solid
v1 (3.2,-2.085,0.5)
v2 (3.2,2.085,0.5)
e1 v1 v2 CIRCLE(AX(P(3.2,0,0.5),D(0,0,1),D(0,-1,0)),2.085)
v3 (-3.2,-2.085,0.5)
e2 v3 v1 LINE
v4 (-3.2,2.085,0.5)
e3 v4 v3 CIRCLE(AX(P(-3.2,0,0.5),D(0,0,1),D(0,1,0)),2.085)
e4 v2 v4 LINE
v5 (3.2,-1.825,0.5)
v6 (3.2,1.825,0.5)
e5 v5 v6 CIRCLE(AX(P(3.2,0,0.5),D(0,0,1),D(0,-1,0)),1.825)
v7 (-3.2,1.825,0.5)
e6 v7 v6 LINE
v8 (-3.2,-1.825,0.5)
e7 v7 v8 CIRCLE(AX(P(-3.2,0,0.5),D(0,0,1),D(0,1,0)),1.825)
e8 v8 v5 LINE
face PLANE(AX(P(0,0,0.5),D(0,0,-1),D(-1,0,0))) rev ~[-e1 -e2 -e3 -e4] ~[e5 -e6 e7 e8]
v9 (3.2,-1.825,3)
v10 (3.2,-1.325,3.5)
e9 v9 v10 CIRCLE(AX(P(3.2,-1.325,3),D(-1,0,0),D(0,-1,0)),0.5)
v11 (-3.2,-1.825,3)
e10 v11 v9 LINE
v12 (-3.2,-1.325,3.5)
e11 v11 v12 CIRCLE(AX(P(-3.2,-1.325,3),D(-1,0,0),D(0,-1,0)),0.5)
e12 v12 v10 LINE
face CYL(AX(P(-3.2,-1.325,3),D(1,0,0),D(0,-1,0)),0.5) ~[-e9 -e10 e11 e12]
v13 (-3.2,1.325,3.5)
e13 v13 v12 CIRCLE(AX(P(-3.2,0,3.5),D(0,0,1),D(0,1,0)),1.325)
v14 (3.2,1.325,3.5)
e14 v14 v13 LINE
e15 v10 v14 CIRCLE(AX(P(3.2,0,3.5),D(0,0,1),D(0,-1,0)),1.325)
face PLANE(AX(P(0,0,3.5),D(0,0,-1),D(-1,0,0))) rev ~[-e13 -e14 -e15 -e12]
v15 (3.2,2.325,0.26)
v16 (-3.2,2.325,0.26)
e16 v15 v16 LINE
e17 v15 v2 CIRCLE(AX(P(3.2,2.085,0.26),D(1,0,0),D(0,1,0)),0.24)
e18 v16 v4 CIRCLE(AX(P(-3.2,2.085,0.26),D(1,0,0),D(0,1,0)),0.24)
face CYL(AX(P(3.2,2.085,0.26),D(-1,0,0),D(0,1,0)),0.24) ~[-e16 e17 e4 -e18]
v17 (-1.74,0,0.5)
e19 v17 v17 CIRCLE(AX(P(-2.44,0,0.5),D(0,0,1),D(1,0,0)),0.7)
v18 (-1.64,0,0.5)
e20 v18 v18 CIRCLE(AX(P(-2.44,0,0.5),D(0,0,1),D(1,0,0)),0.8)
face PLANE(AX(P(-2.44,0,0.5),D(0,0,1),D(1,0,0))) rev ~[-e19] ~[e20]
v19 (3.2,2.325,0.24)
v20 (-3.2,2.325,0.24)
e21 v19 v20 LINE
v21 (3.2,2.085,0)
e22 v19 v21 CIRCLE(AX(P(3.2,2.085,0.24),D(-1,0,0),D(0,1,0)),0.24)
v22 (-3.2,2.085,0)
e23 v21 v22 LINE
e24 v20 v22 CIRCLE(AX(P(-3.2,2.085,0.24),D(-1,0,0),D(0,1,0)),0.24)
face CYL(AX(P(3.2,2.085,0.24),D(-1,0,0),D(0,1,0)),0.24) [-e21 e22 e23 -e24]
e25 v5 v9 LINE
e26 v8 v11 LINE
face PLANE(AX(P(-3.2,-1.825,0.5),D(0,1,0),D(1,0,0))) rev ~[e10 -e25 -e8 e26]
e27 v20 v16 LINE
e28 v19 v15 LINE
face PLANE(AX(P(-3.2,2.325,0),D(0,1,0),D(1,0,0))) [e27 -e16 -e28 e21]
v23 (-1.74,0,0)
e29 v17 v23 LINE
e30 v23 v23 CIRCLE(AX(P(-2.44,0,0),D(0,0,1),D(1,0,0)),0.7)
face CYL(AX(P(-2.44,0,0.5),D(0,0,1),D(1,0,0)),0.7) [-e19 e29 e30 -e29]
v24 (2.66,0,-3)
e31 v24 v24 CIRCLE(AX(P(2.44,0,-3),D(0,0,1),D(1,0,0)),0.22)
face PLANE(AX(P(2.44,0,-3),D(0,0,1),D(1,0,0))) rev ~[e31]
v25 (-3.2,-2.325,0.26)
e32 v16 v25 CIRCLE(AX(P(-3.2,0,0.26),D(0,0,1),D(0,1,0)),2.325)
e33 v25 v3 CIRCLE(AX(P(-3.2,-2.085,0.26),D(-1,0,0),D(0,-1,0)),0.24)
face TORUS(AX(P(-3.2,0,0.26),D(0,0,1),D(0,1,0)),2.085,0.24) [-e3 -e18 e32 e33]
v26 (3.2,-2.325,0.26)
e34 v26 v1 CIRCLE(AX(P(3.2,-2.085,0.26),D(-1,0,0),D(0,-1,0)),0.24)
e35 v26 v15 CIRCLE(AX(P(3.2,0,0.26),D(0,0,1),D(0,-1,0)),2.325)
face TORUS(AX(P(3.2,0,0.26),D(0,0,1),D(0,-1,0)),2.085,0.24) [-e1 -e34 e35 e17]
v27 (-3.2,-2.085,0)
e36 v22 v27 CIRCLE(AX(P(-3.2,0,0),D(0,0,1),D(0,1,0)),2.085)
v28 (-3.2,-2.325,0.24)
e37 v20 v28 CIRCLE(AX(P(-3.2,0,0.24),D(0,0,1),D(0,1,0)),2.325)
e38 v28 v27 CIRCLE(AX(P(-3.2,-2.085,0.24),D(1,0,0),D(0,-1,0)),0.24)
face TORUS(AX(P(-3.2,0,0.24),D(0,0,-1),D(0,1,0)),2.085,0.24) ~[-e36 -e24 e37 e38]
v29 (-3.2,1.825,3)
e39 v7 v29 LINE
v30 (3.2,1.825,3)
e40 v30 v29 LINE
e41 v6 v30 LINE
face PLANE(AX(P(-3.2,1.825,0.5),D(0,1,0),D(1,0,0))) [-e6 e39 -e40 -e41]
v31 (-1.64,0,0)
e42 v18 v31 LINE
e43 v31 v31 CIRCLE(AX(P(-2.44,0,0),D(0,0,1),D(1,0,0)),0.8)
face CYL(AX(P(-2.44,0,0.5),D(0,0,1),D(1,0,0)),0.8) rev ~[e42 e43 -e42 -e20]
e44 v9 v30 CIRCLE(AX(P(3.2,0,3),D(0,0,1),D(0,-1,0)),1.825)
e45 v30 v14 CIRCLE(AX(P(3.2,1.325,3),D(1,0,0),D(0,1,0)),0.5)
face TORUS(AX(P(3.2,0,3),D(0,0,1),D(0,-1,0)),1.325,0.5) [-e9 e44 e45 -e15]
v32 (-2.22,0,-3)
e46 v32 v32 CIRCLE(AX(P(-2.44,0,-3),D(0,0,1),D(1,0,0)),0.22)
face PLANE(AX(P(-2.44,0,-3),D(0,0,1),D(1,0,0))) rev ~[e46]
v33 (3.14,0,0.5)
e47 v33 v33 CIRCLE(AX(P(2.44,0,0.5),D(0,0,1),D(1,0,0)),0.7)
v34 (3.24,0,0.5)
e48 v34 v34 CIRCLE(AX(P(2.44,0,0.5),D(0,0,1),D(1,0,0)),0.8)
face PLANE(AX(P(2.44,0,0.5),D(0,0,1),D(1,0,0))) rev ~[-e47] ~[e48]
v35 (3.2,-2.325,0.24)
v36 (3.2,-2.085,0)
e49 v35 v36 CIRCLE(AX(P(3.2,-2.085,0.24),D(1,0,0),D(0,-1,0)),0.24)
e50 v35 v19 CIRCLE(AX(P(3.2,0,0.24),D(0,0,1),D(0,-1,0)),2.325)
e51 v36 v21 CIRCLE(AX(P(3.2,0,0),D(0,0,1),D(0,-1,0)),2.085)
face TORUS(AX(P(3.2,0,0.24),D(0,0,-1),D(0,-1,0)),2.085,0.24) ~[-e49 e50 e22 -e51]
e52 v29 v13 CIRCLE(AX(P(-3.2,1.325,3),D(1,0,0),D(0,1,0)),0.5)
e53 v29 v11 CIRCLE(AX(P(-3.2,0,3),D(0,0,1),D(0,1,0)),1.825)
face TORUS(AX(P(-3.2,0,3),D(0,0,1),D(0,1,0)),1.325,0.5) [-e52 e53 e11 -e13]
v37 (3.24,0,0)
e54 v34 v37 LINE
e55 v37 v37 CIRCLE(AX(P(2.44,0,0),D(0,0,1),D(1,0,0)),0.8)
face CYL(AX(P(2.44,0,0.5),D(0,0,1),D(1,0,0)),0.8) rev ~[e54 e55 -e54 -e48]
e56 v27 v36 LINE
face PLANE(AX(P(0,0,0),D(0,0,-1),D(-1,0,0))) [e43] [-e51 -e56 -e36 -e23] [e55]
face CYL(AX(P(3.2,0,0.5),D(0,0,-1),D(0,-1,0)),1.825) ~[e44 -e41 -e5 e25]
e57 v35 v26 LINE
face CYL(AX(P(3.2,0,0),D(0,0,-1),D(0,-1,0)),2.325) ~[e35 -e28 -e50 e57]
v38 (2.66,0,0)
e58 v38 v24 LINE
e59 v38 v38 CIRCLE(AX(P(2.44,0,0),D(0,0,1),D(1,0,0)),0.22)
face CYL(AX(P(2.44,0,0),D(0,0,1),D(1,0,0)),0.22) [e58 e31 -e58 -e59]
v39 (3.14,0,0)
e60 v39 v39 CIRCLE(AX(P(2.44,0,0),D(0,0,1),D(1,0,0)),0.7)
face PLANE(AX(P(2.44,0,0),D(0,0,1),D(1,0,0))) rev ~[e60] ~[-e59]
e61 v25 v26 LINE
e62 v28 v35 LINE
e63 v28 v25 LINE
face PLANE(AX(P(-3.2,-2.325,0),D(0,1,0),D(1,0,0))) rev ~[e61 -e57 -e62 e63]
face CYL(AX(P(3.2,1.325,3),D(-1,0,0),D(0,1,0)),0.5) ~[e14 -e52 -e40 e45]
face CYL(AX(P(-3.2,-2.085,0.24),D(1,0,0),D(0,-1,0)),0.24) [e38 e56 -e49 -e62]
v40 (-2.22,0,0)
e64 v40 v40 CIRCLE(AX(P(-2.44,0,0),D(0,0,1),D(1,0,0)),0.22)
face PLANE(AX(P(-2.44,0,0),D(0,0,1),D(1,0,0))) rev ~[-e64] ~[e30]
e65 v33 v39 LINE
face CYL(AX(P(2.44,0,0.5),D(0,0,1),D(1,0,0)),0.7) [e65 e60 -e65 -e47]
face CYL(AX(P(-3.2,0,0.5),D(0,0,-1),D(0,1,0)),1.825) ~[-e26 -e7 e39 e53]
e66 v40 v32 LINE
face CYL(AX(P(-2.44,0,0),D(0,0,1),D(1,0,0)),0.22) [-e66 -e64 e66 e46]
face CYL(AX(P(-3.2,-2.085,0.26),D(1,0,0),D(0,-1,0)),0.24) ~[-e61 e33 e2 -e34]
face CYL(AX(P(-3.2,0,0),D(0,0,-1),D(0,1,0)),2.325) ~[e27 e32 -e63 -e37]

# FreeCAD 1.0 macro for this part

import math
import FreeCAD as App
import Part
import Sketcher

V = App.Vector


def edges_at(feature, points):
    """Names of the edges that pass closest to the given points."""
    edges = feature.Shape.Edges
    near = lambda p: min(range(len(edges)), key=lambda i: edges[i].distToShape(Part.Vertex(*p))[0])
    return sorted({f"Edge{near(p) + 1}" for p in points})

doc = App.newDocument("Part")
body = doc.addObject("PartDesign::Body", "Body")

# Sketch on XY plane
sketch1 = body.newObject("Sketcher::SketchObject", "Sketch")
sketch1.AttachmentSupport = (doc.getObject("XY_Plane"), [""])
sketch1.MapMode = "FlatFace"
sketch1.addGeometry([
    Part.LineSegment(V(3.2, 2.3, 0), V(-3.2, 2.3, 0)),
    Part.ArcOfCircle(Part.Circle(V(-3.2, 0, 0), V(0, 0, 1), 2.3), math.radians(90), math.radians(270)),
    Part.LineSegment(V(-3.2, -2.3, 0), V(3.2, -2.3, 0)),
    Part.ArcOfCircle(Part.Circle(V(3.2, 0, 0), V(0, 0, 1), 2.3), math.radians(-90), math.radians(90)),
], False)
sketch1.addConstraint([
    Sketcher.Constraint("Tangent", 0, 2, 1, 1),
    Sketcher.Constraint("Tangent", 1, 2, 2, 1),
    Sketcher.Constraint("Tangent", 2, 2, 3, 1),
    Sketcher.Constraint("Tangent", 3, 2, 0, 1),
    Sketcher.Constraint("Horizontal", 0),
    Sketcher.Constraint("Horizontal", 2),
    Sketcher.Constraint("Symmetric", 1, 3, 3, 3, -1, 1),
    Sketcher.Constraint("DistanceX", 0, 2, 0, 1, 6.4),
    Sketcher.Constraint("Radius", 1, 2.325),
])
pad1 = body.newObject("PartDesign::Pad", "Pad")
pad1.Profile = sketch1
pad1.Length = 0.5
doc.recompute()

fillet = body.newObject("PartDesign::Fillet", "Fillet")
fillet.Base = (pad1, edges_at(pad1, [
    (0, -2.325, 0.5),
    (-5.525, 0, 0.5),
    (0, 2.325, 0.5),
    (5.525, 0, 0.5),
    (5.525, 0, 0),
    (0, -2.325, 0),
    (-5.525, 0, 0),
    (0, 2.325, 0),
]))
fillet.Radius = 0.24

# Sketch on XY plane
sketch2 = body.newObject("Sketcher::SketchObject", "Sketch001")
sketch2.AttachmentSupport = (doc.getObject("XY_Plane"), [""])
sketch2.MapMode = "FlatFace"
sketch2.AttachmentOffset = App.Placement(V(0, 0, 0.5), App.Rotation())
sketch2.addGeometry([
    Part.LineSegment(V(3.2, 1.8, 0), V(-3.2, 1.8, 0)),
    Part.ArcOfCircle(Part.Circle(V(-3.2, 0, 0), V(0, 0, 1), 1.8), math.radians(90), math.radians(270)),
    Part.LineSegment(V(-3.2, -1.8, 0), V(3.2, -1.8, 0)),
    Part.ArcOfCircle(Part.Circle(V(3.2, 0, 0), V(0, 0, 1), 1.8), math.radians(-90), math.radians(90)),
], False)
sketch2.addConstraint([
    Sketcher.Constraint("Tangent", 0, 2, 1, 1),
    Sketcher.Constraint("Tangent", 1, 2, 2, 1),
    Sketcher.Constraint("Tangent", 2, 2, 3, 1),
    Sketcher.Constraint("Tangent", 3, 2, 0, 1),
    Sketcher.Constraint("Horizontal", 0),
    Sketcher.Constraint("Horizontal", 2),
    Sketcher.Constraint("Symmetric", 1, 3, 3, 3, -1, 1),
    Sketcher.Constraint("DistanceX", 0, 2, 0, 1, 6.4),
    Sketcher.Constraint("Radius", 1, 1.825),
])
pad2 = body.newObject("PartDesign::Pad", "Pad001")
pad2.Profile = sketch2
pad2.Length = 3
doc.recompute()

fillet2 = body.newObject("PartDesign::Fillet", "Fillet001")
fillet2.Base = (pad2, edges_at(pad2, [
    (0, -1.825, 3.5),
    (-5.025, 0, 3.5),
    (0, 1.825, 3.5),
    (5.025, 0, 3.5),
]))
fillet2.Radius = 0.5

# Sketch on XY plane
sketch3 = body.newObject("Sketcher::SketchObject", "Sketch002")
sketch3.AttachmentSupport = (doc.getObject("XY_Plane"), [""])
sketch3.MapMode = "FlatFace"
sketch3.AttachmentOffset = App.Placement(V(0, 0, 0.5), App.Rotation())
sketch3.addGeometry([
    Part.Circle(V(-2.4, 0, 0), V(0, 0, 1), 0.8),
    Part.Circle(V(2.4, 0, 0), V(0, 0, 1), 0.8),
], False)
sketch3.addConstraint([
    Sketcher.Constraint("Equal", 0, 1),
    Sketcher.Constraint("Symmetric", 0, 3, 1, 3, -1, 1),
    Sketcher.Constraint("PointOnObject", 0, 3, -1),
    Sketcher.Constraint("Diameter", 0, 1.6),
    Sketcher.Constraint("DistanceX", 0, 3, -1, 1, 2.44),
])
pocket1 = body.newObject("PartDesign::Pocket", "Pocket")
pocket1.Profile = sketch3
pocket1.Length = 0.5

# Sketch on XY plane
sketch4 = body.newObject("Sketcher::SketchObject", "Sketch003")
sketch4.AttachmentSupport = (doc.getObject("XY_Plane"), [""])
sketch4.MapMode = "FlatFace"
sketch4.AttachmentOffset = App.Placement(V(0, 0, 0.5), App.Rotation())
sketch4.addGeometry([
    Part.Circle(V(2.4, 0, 0), V(0, 0, 1), 0.7),
    Part.Circle(V(-2.4, 0, 0), V(0, 0, 1), 0.7),
], False)
sketch4.addConstraint([
    Sketcher.Constraint("Equal", 0, 1),
    Sketcher.Constraint("Symmetric", 0, 3, 1, 3, -1, 1),
    Sketcher.Constraint("PointOnObject", 0, 3, -1),
    Sketcher.Constraint("Diameter", 0, 1.4),
    Sketcher.Constraint("DistanceX", -1, 1, 0, 3, 2.44),
])
pad3 = body.newObject("PartDesign::Pad", "Pad002")
pad3.Profile = sketch4
pad3.Length = 0.5
pad3.Reversed = True

# Sketch on XY plane
sketch5 = body.newObject("Sketcher::SketchObject", "Sketch004")
sketch5.AttachmentSupport = (doc.getObject("XY_Plane"), [""])
sketch5.MapMode = "FlatFace"
sketch5.addGeometry([
    Part.Circle(V(2.44, 0, 0), V(0, 0, 1), 0.22),
    Part.Circle(V(-2.44, 0, 0), V(0, 0, 1), 0.22),
], False)
sketch5.addConstraint([
    Sketcher.Constraint("Equal", 0, 1),
    Sketcher.Constraint("Symmetric", 0, 3, 1, 3, -1, 1),
    Sketcher.Constraint("PointOnObject", 0, 3, -1),
    Sketcher.Constraint("Diameter", 0, 0.44),
    Sketcher.Constraint("DistanceX", -1, 1, 0, 3, 2.44),
])
pad4 = body.newObject("PartDesign::Pad", "Pad003")
pad4.Profile = sketch5
pad4.Length = 3
pad4.Reversed = True

doc.recompute()
